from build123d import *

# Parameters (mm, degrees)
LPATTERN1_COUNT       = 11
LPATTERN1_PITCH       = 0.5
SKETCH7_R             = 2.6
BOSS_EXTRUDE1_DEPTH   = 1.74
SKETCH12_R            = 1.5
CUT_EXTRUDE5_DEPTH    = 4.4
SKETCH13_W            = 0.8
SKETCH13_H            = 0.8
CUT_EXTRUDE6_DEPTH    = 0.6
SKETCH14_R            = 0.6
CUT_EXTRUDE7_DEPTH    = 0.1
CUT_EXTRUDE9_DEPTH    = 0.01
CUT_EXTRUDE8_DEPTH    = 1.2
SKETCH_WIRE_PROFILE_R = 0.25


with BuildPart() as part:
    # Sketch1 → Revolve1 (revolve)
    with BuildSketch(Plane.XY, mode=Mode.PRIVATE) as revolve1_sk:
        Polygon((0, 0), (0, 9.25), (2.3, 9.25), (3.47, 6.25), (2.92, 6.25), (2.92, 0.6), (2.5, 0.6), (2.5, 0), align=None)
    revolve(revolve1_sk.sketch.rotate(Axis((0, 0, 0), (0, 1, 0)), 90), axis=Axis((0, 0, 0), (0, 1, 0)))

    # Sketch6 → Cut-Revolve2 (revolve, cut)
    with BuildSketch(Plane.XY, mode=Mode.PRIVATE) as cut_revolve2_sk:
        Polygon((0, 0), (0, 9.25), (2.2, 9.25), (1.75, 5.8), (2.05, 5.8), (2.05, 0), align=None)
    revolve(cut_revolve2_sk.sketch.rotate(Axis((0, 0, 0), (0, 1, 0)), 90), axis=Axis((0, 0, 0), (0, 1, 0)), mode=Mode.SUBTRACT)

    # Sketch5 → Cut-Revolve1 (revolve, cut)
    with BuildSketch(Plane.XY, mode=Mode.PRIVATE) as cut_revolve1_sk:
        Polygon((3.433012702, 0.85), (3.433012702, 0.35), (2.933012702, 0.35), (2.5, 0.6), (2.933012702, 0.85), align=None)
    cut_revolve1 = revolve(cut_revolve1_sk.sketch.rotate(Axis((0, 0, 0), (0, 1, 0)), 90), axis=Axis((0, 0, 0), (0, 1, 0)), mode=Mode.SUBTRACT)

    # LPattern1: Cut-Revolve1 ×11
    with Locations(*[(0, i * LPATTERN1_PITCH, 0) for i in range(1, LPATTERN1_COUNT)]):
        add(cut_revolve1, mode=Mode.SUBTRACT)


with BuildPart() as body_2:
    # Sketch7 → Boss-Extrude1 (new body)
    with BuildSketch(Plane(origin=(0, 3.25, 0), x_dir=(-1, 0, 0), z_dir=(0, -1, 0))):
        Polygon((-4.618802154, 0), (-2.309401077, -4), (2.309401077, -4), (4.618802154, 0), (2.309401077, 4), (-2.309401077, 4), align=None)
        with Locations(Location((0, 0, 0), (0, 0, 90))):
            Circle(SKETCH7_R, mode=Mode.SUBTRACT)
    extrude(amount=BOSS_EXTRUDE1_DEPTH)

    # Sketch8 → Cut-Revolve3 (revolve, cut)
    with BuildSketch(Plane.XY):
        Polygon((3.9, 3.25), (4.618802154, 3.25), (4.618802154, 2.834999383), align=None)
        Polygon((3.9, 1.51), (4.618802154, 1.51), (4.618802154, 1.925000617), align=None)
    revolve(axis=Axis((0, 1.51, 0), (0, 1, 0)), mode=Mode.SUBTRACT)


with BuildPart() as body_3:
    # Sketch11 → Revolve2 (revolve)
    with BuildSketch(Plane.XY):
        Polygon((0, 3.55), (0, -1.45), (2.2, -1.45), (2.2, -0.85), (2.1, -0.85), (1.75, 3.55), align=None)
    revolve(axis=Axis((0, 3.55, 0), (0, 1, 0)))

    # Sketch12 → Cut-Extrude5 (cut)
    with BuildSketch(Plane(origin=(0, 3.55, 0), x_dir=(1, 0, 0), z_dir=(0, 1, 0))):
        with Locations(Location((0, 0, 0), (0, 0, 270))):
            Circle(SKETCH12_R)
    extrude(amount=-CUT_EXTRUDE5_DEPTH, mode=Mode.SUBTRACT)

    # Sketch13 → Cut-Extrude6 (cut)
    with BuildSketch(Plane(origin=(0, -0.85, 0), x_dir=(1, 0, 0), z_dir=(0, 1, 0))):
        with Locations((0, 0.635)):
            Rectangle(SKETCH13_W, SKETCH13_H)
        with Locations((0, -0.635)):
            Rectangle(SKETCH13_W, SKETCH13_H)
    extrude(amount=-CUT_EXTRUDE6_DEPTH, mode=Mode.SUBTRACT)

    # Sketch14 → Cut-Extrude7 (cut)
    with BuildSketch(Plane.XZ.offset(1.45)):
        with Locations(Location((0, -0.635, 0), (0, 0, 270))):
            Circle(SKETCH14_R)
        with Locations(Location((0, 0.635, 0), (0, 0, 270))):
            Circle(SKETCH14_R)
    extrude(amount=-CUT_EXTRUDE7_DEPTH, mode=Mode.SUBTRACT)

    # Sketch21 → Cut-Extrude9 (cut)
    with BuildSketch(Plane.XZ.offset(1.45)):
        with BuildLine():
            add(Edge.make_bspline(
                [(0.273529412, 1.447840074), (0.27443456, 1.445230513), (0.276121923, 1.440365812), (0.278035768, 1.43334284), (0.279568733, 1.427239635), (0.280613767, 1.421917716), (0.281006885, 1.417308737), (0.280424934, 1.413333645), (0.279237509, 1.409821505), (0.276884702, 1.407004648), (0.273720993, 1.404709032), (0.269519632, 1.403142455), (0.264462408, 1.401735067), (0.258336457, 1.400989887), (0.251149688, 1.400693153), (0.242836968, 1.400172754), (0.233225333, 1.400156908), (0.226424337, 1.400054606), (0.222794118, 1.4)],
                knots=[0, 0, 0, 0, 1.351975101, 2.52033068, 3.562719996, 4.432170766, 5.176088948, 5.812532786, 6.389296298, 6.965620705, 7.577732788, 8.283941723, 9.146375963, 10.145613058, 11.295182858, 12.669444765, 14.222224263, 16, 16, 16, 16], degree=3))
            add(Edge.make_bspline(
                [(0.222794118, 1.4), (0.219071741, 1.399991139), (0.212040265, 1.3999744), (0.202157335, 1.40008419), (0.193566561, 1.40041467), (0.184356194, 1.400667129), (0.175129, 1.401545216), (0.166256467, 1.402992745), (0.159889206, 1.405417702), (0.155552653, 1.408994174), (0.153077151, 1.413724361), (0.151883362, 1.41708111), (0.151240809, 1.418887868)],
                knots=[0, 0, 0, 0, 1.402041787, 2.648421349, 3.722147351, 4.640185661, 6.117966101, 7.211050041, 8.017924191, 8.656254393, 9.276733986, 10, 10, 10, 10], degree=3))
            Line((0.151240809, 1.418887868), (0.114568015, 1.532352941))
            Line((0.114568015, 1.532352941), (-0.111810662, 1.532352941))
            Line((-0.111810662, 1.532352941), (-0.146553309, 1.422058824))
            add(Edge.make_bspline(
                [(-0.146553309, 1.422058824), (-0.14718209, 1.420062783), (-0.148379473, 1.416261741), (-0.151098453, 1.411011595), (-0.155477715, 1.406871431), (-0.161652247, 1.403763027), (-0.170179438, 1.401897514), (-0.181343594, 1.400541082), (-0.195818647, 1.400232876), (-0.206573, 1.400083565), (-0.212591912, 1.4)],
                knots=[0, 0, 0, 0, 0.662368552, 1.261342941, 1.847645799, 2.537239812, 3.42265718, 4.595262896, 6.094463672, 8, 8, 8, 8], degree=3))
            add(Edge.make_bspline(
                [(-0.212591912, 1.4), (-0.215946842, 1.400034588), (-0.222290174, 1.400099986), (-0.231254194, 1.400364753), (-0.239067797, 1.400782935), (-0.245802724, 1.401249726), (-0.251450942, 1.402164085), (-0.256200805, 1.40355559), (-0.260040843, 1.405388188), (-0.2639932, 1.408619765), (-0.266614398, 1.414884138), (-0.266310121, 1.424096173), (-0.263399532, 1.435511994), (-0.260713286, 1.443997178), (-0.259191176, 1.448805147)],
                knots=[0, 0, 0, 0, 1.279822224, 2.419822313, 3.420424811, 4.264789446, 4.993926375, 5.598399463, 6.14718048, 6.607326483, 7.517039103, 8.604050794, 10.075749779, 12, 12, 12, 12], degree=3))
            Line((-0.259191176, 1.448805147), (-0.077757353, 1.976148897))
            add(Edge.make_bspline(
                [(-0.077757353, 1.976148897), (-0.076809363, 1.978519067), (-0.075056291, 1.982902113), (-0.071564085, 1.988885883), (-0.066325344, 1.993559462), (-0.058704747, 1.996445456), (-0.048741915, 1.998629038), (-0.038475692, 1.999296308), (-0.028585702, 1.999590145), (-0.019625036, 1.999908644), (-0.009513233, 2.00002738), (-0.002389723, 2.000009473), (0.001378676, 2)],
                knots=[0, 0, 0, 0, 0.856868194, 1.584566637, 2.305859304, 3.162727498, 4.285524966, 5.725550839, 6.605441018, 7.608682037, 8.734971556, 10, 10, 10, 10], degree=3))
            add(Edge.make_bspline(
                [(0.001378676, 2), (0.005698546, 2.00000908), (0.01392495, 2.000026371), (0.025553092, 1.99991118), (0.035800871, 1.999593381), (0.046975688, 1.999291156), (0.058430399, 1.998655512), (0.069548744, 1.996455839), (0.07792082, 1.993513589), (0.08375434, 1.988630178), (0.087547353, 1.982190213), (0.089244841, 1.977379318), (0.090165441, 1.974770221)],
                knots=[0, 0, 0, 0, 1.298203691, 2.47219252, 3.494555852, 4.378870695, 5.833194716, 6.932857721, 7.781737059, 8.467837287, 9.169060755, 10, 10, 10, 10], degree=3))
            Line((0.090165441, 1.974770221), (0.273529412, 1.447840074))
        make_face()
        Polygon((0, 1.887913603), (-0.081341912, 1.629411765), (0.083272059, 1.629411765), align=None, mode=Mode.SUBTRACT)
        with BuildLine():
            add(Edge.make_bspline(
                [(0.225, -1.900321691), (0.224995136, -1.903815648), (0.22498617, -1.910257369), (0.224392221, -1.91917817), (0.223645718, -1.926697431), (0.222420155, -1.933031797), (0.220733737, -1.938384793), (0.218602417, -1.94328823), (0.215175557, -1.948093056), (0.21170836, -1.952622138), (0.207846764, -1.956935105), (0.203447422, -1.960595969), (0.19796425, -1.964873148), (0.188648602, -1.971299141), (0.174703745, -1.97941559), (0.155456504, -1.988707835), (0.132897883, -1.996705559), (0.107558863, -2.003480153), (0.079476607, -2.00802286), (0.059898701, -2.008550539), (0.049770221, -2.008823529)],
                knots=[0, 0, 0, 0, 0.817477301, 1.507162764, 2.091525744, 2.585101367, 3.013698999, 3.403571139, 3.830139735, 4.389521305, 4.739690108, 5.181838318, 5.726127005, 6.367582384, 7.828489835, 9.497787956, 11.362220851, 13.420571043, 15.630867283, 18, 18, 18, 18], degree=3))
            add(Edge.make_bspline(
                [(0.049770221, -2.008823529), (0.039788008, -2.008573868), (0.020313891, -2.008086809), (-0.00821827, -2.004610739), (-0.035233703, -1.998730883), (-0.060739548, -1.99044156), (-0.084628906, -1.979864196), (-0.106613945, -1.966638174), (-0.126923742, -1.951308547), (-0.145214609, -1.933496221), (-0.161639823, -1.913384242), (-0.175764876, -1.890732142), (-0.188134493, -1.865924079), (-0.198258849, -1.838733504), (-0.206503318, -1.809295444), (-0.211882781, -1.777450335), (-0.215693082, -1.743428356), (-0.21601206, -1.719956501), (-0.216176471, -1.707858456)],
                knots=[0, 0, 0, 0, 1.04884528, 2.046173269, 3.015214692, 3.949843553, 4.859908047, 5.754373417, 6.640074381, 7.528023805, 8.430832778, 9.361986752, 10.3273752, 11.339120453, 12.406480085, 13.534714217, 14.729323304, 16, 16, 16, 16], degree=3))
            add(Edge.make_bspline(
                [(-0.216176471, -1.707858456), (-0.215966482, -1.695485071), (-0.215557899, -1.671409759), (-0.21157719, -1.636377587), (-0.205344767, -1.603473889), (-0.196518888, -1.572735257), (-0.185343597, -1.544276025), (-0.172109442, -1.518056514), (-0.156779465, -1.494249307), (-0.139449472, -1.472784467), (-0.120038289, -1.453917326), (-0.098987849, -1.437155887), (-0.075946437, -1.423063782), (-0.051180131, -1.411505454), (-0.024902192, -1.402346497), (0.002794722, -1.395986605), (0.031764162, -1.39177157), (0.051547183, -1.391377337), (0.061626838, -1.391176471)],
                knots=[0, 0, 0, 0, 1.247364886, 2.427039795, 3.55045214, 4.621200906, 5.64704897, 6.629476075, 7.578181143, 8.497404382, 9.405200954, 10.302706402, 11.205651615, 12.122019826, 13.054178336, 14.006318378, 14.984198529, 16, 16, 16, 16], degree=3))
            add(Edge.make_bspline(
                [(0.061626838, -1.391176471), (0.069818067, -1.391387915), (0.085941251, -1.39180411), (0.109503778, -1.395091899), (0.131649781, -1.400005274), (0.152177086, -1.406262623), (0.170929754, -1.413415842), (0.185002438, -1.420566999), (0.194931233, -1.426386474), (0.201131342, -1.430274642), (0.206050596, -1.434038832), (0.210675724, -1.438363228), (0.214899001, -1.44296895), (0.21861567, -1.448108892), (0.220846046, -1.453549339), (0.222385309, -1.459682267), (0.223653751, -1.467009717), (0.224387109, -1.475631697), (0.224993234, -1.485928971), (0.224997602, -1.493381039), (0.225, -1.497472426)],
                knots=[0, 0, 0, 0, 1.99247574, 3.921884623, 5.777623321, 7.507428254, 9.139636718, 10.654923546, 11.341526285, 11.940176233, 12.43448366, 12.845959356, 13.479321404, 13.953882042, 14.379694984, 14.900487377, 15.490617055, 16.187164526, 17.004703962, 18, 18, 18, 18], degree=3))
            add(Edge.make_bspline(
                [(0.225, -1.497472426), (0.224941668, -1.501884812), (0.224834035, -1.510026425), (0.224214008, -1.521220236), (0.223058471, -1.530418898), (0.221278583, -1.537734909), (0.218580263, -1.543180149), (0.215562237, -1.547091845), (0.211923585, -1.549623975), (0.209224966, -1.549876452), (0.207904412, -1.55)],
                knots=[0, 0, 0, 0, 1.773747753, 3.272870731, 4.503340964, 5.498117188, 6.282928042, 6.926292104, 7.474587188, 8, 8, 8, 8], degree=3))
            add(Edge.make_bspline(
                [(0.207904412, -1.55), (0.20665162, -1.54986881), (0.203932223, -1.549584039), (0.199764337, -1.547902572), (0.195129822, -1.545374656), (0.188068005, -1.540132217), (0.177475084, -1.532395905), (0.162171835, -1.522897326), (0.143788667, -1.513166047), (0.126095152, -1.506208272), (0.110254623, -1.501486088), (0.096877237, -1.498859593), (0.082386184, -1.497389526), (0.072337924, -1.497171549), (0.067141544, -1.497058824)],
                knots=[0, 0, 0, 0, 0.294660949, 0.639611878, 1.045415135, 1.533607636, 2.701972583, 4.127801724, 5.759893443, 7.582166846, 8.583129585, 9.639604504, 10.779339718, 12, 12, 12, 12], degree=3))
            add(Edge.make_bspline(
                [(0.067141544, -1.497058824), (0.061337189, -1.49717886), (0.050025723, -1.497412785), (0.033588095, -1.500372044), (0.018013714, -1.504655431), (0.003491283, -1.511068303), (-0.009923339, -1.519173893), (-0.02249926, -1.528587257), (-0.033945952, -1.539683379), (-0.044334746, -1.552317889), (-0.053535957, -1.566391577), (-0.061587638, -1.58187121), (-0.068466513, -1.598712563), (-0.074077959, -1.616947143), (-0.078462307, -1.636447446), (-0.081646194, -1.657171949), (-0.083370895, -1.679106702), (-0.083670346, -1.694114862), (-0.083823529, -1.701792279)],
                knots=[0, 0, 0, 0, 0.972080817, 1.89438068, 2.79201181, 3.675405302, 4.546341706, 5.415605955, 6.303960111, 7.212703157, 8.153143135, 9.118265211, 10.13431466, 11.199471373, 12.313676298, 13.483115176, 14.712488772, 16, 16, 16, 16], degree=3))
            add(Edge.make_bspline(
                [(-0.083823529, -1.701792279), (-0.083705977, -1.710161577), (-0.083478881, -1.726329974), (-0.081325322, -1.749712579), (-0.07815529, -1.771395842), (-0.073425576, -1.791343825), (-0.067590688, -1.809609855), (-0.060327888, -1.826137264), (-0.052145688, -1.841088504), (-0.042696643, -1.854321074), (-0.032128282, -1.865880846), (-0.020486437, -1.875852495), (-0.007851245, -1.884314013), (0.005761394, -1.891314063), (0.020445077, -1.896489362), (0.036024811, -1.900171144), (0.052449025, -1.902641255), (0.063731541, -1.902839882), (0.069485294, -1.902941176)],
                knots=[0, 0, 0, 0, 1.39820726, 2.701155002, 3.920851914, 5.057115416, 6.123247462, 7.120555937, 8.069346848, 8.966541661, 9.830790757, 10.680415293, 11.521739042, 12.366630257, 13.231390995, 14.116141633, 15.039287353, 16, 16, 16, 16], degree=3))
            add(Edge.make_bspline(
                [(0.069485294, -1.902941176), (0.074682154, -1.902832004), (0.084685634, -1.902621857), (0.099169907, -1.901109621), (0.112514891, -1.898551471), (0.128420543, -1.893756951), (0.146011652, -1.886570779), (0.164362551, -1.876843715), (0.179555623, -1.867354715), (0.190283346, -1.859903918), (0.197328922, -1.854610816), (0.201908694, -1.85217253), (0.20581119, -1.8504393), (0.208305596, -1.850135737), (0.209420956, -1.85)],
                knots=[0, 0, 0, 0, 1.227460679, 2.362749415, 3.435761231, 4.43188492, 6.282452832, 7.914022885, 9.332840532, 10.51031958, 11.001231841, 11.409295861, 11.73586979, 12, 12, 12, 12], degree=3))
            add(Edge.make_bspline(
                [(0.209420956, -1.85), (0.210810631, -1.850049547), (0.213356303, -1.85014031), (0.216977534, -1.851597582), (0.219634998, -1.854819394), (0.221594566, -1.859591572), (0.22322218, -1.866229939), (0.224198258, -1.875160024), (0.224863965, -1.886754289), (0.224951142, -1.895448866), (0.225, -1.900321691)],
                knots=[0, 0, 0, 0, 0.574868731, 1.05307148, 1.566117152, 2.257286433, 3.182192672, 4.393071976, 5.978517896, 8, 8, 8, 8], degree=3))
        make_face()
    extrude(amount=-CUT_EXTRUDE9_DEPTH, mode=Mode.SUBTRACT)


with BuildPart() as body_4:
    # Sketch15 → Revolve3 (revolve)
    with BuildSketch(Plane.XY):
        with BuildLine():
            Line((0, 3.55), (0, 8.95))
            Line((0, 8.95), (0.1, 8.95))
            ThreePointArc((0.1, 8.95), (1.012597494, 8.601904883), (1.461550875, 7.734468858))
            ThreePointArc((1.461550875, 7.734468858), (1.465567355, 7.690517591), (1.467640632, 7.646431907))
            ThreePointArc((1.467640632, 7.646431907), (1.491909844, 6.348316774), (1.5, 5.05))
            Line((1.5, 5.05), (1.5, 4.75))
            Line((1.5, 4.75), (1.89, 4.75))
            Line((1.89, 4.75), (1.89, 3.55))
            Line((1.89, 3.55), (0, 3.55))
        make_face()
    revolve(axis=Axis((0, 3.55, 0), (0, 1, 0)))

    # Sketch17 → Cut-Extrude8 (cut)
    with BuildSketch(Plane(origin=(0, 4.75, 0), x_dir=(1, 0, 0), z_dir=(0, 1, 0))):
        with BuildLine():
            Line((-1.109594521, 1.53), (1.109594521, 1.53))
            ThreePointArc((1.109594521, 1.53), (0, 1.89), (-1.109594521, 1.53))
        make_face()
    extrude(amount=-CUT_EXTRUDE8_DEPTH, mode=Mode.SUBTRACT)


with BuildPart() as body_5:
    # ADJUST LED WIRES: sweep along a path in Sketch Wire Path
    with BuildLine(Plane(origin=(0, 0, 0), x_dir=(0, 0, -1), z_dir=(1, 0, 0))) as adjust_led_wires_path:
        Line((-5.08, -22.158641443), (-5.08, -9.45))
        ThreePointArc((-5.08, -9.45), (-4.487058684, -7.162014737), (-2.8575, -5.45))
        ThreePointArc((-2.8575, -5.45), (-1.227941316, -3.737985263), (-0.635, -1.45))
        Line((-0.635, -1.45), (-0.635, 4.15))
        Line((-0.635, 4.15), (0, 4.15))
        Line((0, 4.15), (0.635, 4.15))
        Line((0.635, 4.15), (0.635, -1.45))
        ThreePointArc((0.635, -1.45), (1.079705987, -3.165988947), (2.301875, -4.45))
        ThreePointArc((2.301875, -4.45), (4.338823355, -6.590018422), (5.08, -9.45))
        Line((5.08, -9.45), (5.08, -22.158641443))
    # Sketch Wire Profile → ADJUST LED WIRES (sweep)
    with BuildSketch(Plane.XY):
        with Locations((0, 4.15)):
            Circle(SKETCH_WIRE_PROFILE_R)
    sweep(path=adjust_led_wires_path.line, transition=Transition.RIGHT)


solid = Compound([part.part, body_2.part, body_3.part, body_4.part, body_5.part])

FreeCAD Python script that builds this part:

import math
import FreeCAD as App
import Part
import Sketcher

V = App.Vector
Q = App.Units.Quantity


def add_polygon(sketch, points):
    """Adds a closed chain of lines whose ends are joined by coincident constraints."""
    first, n = sketch.GeometryCount, len(points)
    for a, b in zip(points, points[1:] + points[:1]):
        sketch.addGeometry(Part.LineSegment(App.Vector(*a, 0), App.Vector(*b, 0)), False)
    for i in range(n):
        sketch.addConstraint(Sketcher.Constraint("Coincident", first + i, 2, first + (i + 1) % n, 1))

doc = App.newDocument("Part")
params = doc.addObject("Spreadsheet::Sheet", "Params")
for row, (alias, value) in enumerate([
    ("sketch1_width", "2.5 mm"),
    ("sketch1_width2", "2.3 mm"),
    ("sketch1_height", "0.6 mm"),
    ("sketch1_width3", "0.42 mm"),
    ("sketch1_width4", "0.55 mm"),
    ("revolution_angle", "360 deg"),
    ("sketch2_width", "0.3 mm"),
    ("sketch2_width2", "2.2 mm"),
    ("sketch2_height", "5.8 mm"),
    ("sketch2_width3", "2.05 mm"),
    ("sketch2_height2", "9.25 mm"),
    ("groove_angle", "360 deg"),
    ("sketch3_width", "0.5 mm"),
    ("groove2_angle", "360 deg"),
    ("linearpattern_pitch", "0.5 mm"),
    ("sketch4_diameter", "5.2 mm"),
    ("pad1_length", "1.74 mm"),
    ("sketch5_length", "0.830001 mm"),
    ("groove3_angle", "360 deg"),
    ("sketch6_height", "5 mm"),
    ("sketch6_width", "2.2 mm"),
    ("sketch6_width2", "0.1 mm"),
    ("sketch6_height2", "0.6 mm"),
    ("sketch6_width3", "1.75 mm"),
    ("revolution2_angle", "360 deg"),
    ("sketch7_diameter", "3 mm"),
    ("pocket1_length", "4.4 mm"),
    ("sketch8_width", "0.8 mm"),
    ("pocket2_length", "0.6 mm"),
    ("sketch9_diameter", "1.2 mm"),
    ("pocket3_length", "0.1 mm"),
    ("pocket4_length", "0.01 mm"),
    ("sketch11_radius", "1 mm"),
    ("sketch11_width", "0.1 mm"),
    ("sketch11_height", "5.4 mm"),
    ("sketch11_height2", "1.2 mm"),
    ("sketch11_height3", "0.3 mm"),
    ("revolution3_angle", "360 deg"),
    ("sketch12_radius", "1.89 mm"),
    ("pocket5_length", "1.2 mm"),
    ("sketch13_diameter", "0.5 mm"),
    ("sketch14_width", "5.6 mm"),
    ("sketch14_height", "1.27 mm"),
], start=1):
    params.set(f"A{row}", alias)
    params.set(f"B{row}", "=" + value)
    params.setAlias(f"B{row}", alias)

body = doc.addObject("PartDesign::Body", "Body")

# Sketch on XY plane
sketch1 = doc.addObject("Sketcher::SketchObject", "Sketch")
body.addObject(sketch1)
sketch1.AttachmentSupport = (doc.XY_Plane, [""])
sketch1.MapMode = "FlatFace"
add_polygon(sketch1, [(0, 9.25), (0, 0), (2.5, 0), (2.5, 0.6), (2.92, 0.6), (2.92, 6.25), (3.47, 6.25), (2.3, 9.25)])  # lines 0-7
sketch1.addConstraint([
    Sketcher.Constraint("Vertical", 0),
    Sketcher.Constraint("Horizontal", 1),
    Sketcher.Constraint("Vertical", 2),
    Sketcher.Constraint("Horizontal", 3),
    Sketcher.Constraint("Vertical", 4),
    Sketcher.Constraint("Horizontal", 5),
    Sketcher.Constraint("Horizontal", 7),
    Sketcher.Constraint("Coincident", 0, 2, -1, 1),
    Sketcher.Constraint("DistanceX", 1, 1, 1, 2, Q("2.5 mm")),
    Sketcher.Constraint("DistanceX", 7, 2, 7, 1, Q("2.3 mm")),
    Sketcher.Constraint("DistanceY", 2, 1, 2, 2, Q("0.6 mm")),
    Sketcher.Constraint("DistanceY", 4, 2, 6, 2, Q("3 mm")),
    Sketcher.Constraint("DistanceX", 3, 1, 3, 2, Q("0.42 mm")),
    Sketcher.Constraint("DistanceX", 5, 1, 5, 2, Q("0.55 mm")),
    Sketcher.Constraint("DistanceY", 0, 2, 0, 1, Q("9.25 mm")),
])
sketch1.setExpression("Constraints[16]", "Params.sketch1_width")
sketch1.setExpression("Constraints[17]", "Params.sketch1_width2")
sketch1.setExpression("Constraints[18]", "Params.sketch1_height")
sketch1.setExpression("Constraints[20]", "Params.sketch1_width3")
sketch1.setExpression("Constraints[21]", "Params.sketch1_width4")
revolution = doc.addObject("PartDesign::Revolution", "Revolution")
body.addObject(revolution)
revolution.Profile = sketch1
revolution.ReferenceAxis = (sketch1, ["V_Axis"])
revolution.setExpression("Angle", "Params.revolution_angle")

# Sketch on XY plane
sketch2 = doc.addObject("Sketcher::SketchObject", "Sketch001")
body.addObject(sketch2)
sketch2.AttachmentSupport = (doc.XY_Plane, [""])
sketch2.MapMode = "FlatFace"
add_polygon(sketch2, [(0, 9.25), (0, 0), (2.05, 0), (2.05, 5.8), (1.75, 5.8), (2.2, 9.25)])  # lines 0-5
sketch2.addConstraint([
    Sketcher.Constraint("Vertical", 0),
    Sketcher.Constraint("Horizontal", 1),
    Sketcher.Constraint("Vertical", 2),
    Sketcher.Constraint("Horizontal", 3),
    Sketcher.Constraint("Horizontal", 5),
    Sketcher.Constraint("Coincident", 0, 2, -1, 1),
    Sketcher.Constraint("DistanceX", 3, 2, 3, 1, Q("0.3 mm")),
    Sketcher.Constraint("DistanceX", 5, 2, 5, 1, Q("2.2 mm")),
    Sketcher.Constraint("DistanceY", 2, 1, 2, 2, Q("5.8 mm")),
    Sketcher.Constraint("DistanceX", 1, 1, 1, 2, Q("2.05 mm")),
    Sketcher.Constraint("DistanceY", 0, 2, 0, 1, Q("9.25 mm")),
])
sketch2.setExpression("Constraints[12]", "Params.sketch2_width")
sketch2.setExpression("Constraints[13]", "Params.sketch2_width2")
sketch2.setExpression("Constraints[14]", "Params.sketch2_height")
sketch2.setExpression("Constraints[15]", "Params.sketch2_width3")
sketch2.setExpression("Constraints[16]", "Params.sketch2_height2")
groove = doc.addObject("PartDesign::Groove", "Groove")
body.addObject(groove)
groove.Profile = sketch2
groove.ReferenceAxis = (sketch2, ["V_Axis"])
groove.setExpression("Angle", "Params.groove_angle")

# Sketch on XY plane
sketch3 = doc.addObject("Sketcher::SketchObject", "Sketch002")
body.addObject(sketch3)
sketch3.AttachmentSupport = (doc.XY_Plane, [""])
sketch3.MapMode = "FlatFace"
add_polygon(sketch3, [(3.433013, 0.35), (3.433013, 0.85), (2.933013, 0.85), (2.5, 0.6), (2.933013, 0.35)])  # lines 0-4
sketch3.addConstraint([
    Sketcher.Constraint("Vertical", 0),
    Sketcher.Constraint("Horizontal", 1),
    Sketcher.Constraint("Horizontal", 4),
    Sketcher.Constraint("Vertical", 1, 2, 3, 2),
    Sketcher.Constraint("Equal", 4, 0),
    Sketcher.Constraint("Equal", 2, 3),
    Sketcher.Constraint("Angle", 2, Q("-150 deg")),
    Sketcher.Constraint("DistanceX", 1, 2, 1, 1, Q("0.5 mm")),
    Sketcher.Constraint("DistanceX", -1, 1, 2, 2, Q("2.5 mm")),
    Sketcher.Constraint("DistanceY", -1, 1, 2, 2, Q("0.6 mm")),
])
sketch3.setExpression("Constraints[12]", "Params.sketch3_width")
groove2 = doc.addObject("PartDesign::Groove", "Groove001")
body.addObject(groove2)
groove2.Profile = sketch3
groove2.ReferenceAxis = (sketch3, ["V_Axis"])
groove2.setExpression("Angle", "Params.groove2_angle")
doc.recompute()

linearpattern = doc.addObject("PartDesign::LinearPattern", "LinearPattern")
body.addObject(linearpattern)
linearpattern.Originals = [groove2]
linearpattern.Direction = (doc.Y_Axis, [""])
linearpattern.Mode = "offset"
linearpattern.setExpression("Offset", "Params.linearpattern_pitch")
linearpattern.Occurrences = 11
body.Tip = linearpattern
body2 = doc.addObject("PartDesign::Body", "Body001")

# Sketch on XZ plane
sketch4 = doc.addObject("Sketcher::SketchObject", "Sketch003")
body2.addObject(sketch4)
sketch4.AttachmentSupport = (doc.getObject("XZ_Plane001"), [""])
sketch4.MapMode = "FlatFace"
sketch4.AttachmentOffset = App.Placement(V(0, 0, -3.25), App.Rotation())
add_polygon(sketch4, [(4.618802, 0), (2.309401, 4), (-2.309401, 4), (-4.618802, 0), (-2.309401, -4), (2.309401, -4)])  # lines 0-5
sketch4.addGeometry(Part.Circle(V(0, 0, 0), V(0, 0, 1), 2.6), False)  # 6
sketch4.addConstraint([
    Sketcher.Constraint("Horizontal", 1),
    Sketcher.Constraint("Horizontal", 4),
    Sketcher.Constraint("Coincident", 6, 3, -1, 1),
    Sketcher.Constraint("Symmetric", 0, 2, 3, 2, -1, 1),
    Sketcher.Constraint("Symmetric", 2, 2, 5, 2, -1, 1),
    Sketcher.Constraint("PointOnObject", 2, 2, -1),
    Sketcher.Constraint("Parallel", 2, 5),
    Sketcher.Constraint("Vertical", 1, 2, 3, 2),
    Sketcher.Constraint("Diameter", 6, Q("5.2 mm")),
    Sketcher.Constraint("Angle", 0, Q("120 deg")),
    Sketcher.Constraint("DistanceY", -1, 1, 0, 2, Q("4 mm")),
    Sketcher.Constraint("DistanceX", -1, 1, 0, 2, Q("2.309401 mm")),
])
sketch4.setExpression("Constraints[14]", "Params.sketch4_diameter")
pad1 = doc.addObject("PartDesign::Pad", "Pad")
body2.addObject(pad1)
pad1.Profile = sketch4
pad1.setExpression("Length", "Params.pad1_length")

# Sketch on XY plane
sketch5 = doc.addObject("Sketcher::SketchObject", "Sketch004")
body2.addObject(sketch5)
sketch5.AttachmentSupport = (doc.getObject("XY_Plane001"), [""])
sketch5.MapMode = "FlatFace"
add_polygon(sketch5, [(4.618802, 3.25), (3.9, 3.25), (4.618802, 2.834999)])  # lines 0-2
add_polygon(sketch5, [(3.9, 1.51), (4.618802, 1.51), (4.618802, 1.925001)])  # lines 3-5
sketch5.addConstraint([
    Sketcher.Constraint("Horizontal", 0),
    Sketcher.Constraint("Vertical", 2),
    Sketcher.Constraint("Horizontal", 3),
    Sketcher.Constraint("Vertical", 4),
    Sketcher.Constraint("Vertical", 2, 2, 3, 2),
    Sketcher.Constraint("Vertical", 0, 2, 5, 2),
    Sketcher.Constraint("Equal", 2, 4),
    Sketcher.Constraint("Angle", 1, Q("-30 deg")),
    Sketcher.Constraint("DistanceX", -1, 1, 0, 2, Q("3.9 mm")),
    Sketcher.Constraint("Distance", 1, Q("0.830001 mm")),
    Sketcher.Constraint("DistanceY", -1, 1, 0, 2, Q("3.25 mm")),
    Sketcher.Constraint("DistanceY", -1, 1, 3, 2, Q("1.51 mm")),
])
sketch5.setExpression("Constraints[15]", "Params.sketch5_length")
groove3 = doc.addObject("PartDesign::Groove", "Groove002")
body2.addObject(groove3)
groove3.Profile = sketch5
groove3.ReferenceAxis = (sketch5, ["V_Axis"])
groove3.setExpression("Angle", "Params.groove3_angle")
body3 = doc.addObject("PartDesign::Body", "Body002")

# Sketch on XY plane
sketch6 = doc.addObject("Sketcher::SketchObject", "Sketch005")
body3.addObject(sketch6)
sketch6.AttachmentSupport = (doc.getObject("XY_Plane002"), [""])
sketch6.MapMode = "FlatFace"
add_polygon(sketch6, [(0, 3.55), (0, -1.45), (2.2, -1.45), (2.2, -0.85), (2.1, -0.85), (1.75, 3.55)])  # lines 0-5
sketch6.addConstraint([
    Sketcher.Constraint("Vertical", 0),
    Sketcher.Constraint("Horizontal", 1),
    Sketcher.Constraint("Vertical", 2),
    Sketcher.Constraint("Horizontal", 3),
    Sketcher.Constraint("Horizontal", 5),
    Sketcher.Constraint("PointOnObject", 0, 2, -2),
    Sketcher.Constraint("DistanceY", 0, 2, 0, 1, Q("5 mm")),
    Sketcher.Constraint("DistanceX", 1, 1, 1, 2, Q("2.2 mm")),
    Sketcher.Constraint("DistanceX", 3, 2, 3, 1, Q("0.1 mm")),
    Sketcher.Constraint("DistanceY", 2, 1, 2, 2, Q("0.6 mm")),
    Sketcher.Constraint("DistanceX", 5, 2, 5, 1, Q("1.75 mm")),
    Sketcher.Constraint("DistanceY", 0, 2, -1, 1, Q("1.45 mm")),
])
sketch6.setExpression("Constraints[12]", "Params.sketch6_height")
sketch6.setExpression("Constraints[13]", "Params.sketch6_width")
sketch6.setExpression("Constraints[14]", "Params.sketch6_width2")
sketch6.setExpression("Constraints[15]", "Params.sketch6_height2")
sketch6.setExpression("Constraints[16]", "Params.sketch6_width3")
revolution2 = doc.addObject("PartDesign::Revolution", "Revolution001")
body3.addObject(revolution2)
revolution2.Profile = sketch6
revolution2.ReferenceAxis = (sketch6, ["V_Axis"])
revolution2.setExpression("Angle", "Params.revolution2_angle")

# Sketch on XZ plane
sketch7 = doc.addObject("Sketcher::SketchObject", "Sketch006")
body3.addObject(sketch7)
sketch7.AttachmentSupport = (doc.getObject("XZ_Plane002"), [""])
sketch7.MapMode = "FlatFace"
sketch7.AttachmentOffset = App.Placement(V(0, 0, -3.55), App.Rotation())
sketch7.addGeometry(Part.Circle(V(0, 0, 0), V(0, 0, 1), 1.5), False)
sketch7.addConstraint([
    Sketcher.Constraint("Coincident", 0, 3, -1, 1),
    Sketcher.Constraint("Diameter", 0, Q("3 mm")),
])
sketch7.setExpression("Constraints[1]", "Params.sketch7_diameter")
pocket1 = doc.addObject("PartDesign::Pocket", "Pocket")
body3.addObject(pocket1)
pocket1.Profile = sketch7
pocket1.setExpression("Length", "Params.pocket1_length")
pocket1.Reversed = True

# Sketch on XZ plane
sketch8 = doc.addObject("Sketcher::SketchObject", "Sketch007")
body3.addObject(sketch8)
sketch8.AttachmentSupport = (doc.getObject("XZ_Plane002"), [""])
sketch8.MapMode = "FlatFace"
sketch8.AttachmentOffset = App.Placement(V(0, 0, 0.85), App.Rotation())
add_polygon(sketch8, [(-0.4, -1.035), (-0.4, -0.235), (0.4, -0.235), (0.4, -1.035)])  # lines 0-3
add_polygon(sketch8, [(-0.4, 0.235), (-0.4, 1.035), (0.4, 1.035), (0.4, 0.235)])  # lines 4-7
sketch8.addConstraint([
    Sketcher.Constraint("Vertical", 0),
    Sketcher.Constraint("Horizontal", 1),
    Sketcher.Constraint("Vertical", 2),
    Sketcher.Constraint("Horizontal", 3),
    Sketcher.Constraint("Vertical", 4),
    Sketcher.Constraint("Horizontal", 5),
    Sketcher.Constraint("Vertical", 6),
    Sketcher.Constraint("Horizontal", 7),
    Sketcher.Constraint("Symmetric", 2, 2, 4, 2, -1, 1),
    Sketcher.Constraint("Symmetric", 0, 2, 6, 2, -1, 1),
    Sketcher.Constraint("Vertical", 3, 2, 4, 2),
    Sketcher.Constraint("Equal", 7, 0),
    Sketcher.Constraint("DistanceX", 1, 1, 1, 2, Q("0.8 mm")),
    Sketcher.Constraint("DistanceY", 0, 2, 4, 2, Q("1.27 mm")),
])
sketch8.setExpression("Constraints[20]", "Params.sketch8_width")
pocket2 = doc.addObject("PartDesign::Pocket", "Pocket001")
body3.addObject(pocket2)
pocket2.Profile = sketch8
pocket2.setExpression("Length", "Params.pocket2_length")
pocket2.Reversed = True

# Sketch on XZ plane
sketch9 = doc.addObject("Sketcher::SketchObject", "Sketch008")
body3.addObject(sketch9)
sketch9.AttachmentSupport = (doc.getObject("XZ_Plane002"), [""])
sketch9.MapMode = "FlatFace"
sketch9.AttachmentOffset = App.Placement(V(0, 0, 1.45), App.Rotation())
sketch9.addGeometry([
    Part.Circle(V(0, -0.635, 0), V(0, 0, 1), 0.6),
    Part.Circle(V(0, 0.635, 0), V(0, 0, 1), 0.6),
], False)
sketch9.addConstraint([
    Sketcher.Constraint("Equal", 0, 1),
    Sketcher.Constraint("Symmetric", 0, 3, 1, 3, -1, 1),
    Sketcher.Constraint("PointOnObject", 0, 3, -2),
    Sketcher.Constraint("Diameter", 0, Q("1.2 mm")),
    Sketcher.Constraint("DistanceY", 0, 3, 1, 3, Q("1.27 mm")),
])
sketch9.setExpression("Constraints[3]", "Params.sketch9_diameter")
pocket3 = doc.addObject("PartDesign::Pocket", "Pocket002")
body3.addObject(pocket3)
pocket3.Profile = sketch9
pocket3.setExpression("Length", "Params.pocket3_length")

# Sketch on XZ plane
sketch10 = doc.addObject("Sketcher::SketchObject", "Sketch009")
body3.addObject(sketch10)
sketch10.AttachmentSupport = (doc.getObject("XZ_Plane002"), [""])
sketch10.MapMode = "FlatFace"
sketch10.AttachmentOffset = App.Placement(V(0, 0, 1.45), App.Rotation())
sketch10.addGeometry(Part.BSplineCurve([V(0.273529, 1.44784, 0), V(0.274435, 1.445231, 0), V(0.276122, 1.440366, 0), V(0.278036, 1.433343, 0), V(0.279569, 1.42724, 0), V(0.280614, 1.421918, 0), V(0.281007, 1.417309, 0), V(0.280425, 1.413334, 0), V(0.279238, 1.409822, 0), V(0.276885, 1.407005, 0), V(0.273721, 1.404709, 0), V(0.26952, 1.403142, 0), V(0.264462, 1.401735, 0), V(0.258336, 1.40099, 0), V(0.25115, 1.400693, 0), V(0.242837, 1.400173, 0), V(0.233225, 1.400157, 0), V(0.226424, 1.400055, 0), V(0.222794, 1.4, 0)], [4, 1, 1, 1, 1, 1, 1, 1, 1, 1, 1, 1, 1, 1, 1, 1, 4], [0, 1.351975101, 2.52033068, 3.562719996, 4.432170766, 5.176088948, 5.812532786, 6.389296298, 6.965620705, 7.577732788, 8.283941723, 9.146375963, 10.145613058, 11.295182858, 12.669444765, 14.222224263, 16], False, 3, [1, 1, 1, 1, 1, 1, 1, 1, 1, 1, 1, 1, 1, 1, 1, 1, 1, 1, 1], False), False)  # 0
sketch10.addGeometry(Part.LineSegment(V(0.273529, 1.44784, 0), V(0.090165, 1.97477, 0)), False)  # 1
sketch10.addGeometry(Part.BSplineCurve([V(0.001379, 2, 0), V(0.005699, 2.000009, 0), V(0.013925, 2.000026, 0), V(0.025553, 1.999911, 0), V(0.035801, 1.999593, 0), V(0.046976, 1.999291, 0), V(0.05843, 1.998656, 0), V(0.069549, 1.996456, 0), V(0.077921, 1.993514, 0), V(0.083754, 1.98863, 0), V(0.087547, 1.98219, 0), V(0.089245, 1.977379, 0), V(0.090165, 1.97477, 0)], [4, 1, 1, 1, 1, 1, 1, 1, 1, 1, 4], [0, 1.298203691, 2.47219252, 3.494555852, 4.378870695, 5.833194716, 6.932857721, 7.781737059, 8.467837287, 9.169060755, 10], False, 3, [1, 1, 1, 1, 1, 1, 1, 1, 1, 1, 1, 1, 1], False), False)  # 2
sketch10.addGeometry(Part.BSplineCurve([V(-0.077757, 1.976149, 0), V(-0.076809, 1.978519, 0), V(-0.075056, 1.982902, 0), V(-0.071564, 1.988886, 0), V(-0.066325, 1.993559, 0), V(-0.058705, 1.996445, 0), V(-0.048742, 1.998629, 0), V(-0.038476, 1.999296, 0), V(-0.028586, 1.99959, 0), V(-0.019625, 1.999909, 0), V(-0.009513, 2.000027, 0), V(-0.00239, 2.000009, 0), V(0.001379, 2, 0)], [4, 1, 1, 1, 1, 1, 1, 1, 1, 1, 4], [0, 0.856868194, 1.584566637, 2.305859304, 3.162727498, 4.285524966, 5.725550839, 6.605441018, 7.608682037, 8.734971556, 10], False, 3, [1, 1, 1, 1, 1, 1, 1, 1, 1, 1, 1, 1, 1], False), False)  # 3
sketch10.addGeometry(Part.LineSegment(V(-0.077757, 1.976149, 0), V(-0.259191, 1.448805, 0)), False)  # 4
sketch10.addGeometry(Part.BSplineCurve([V(-0.212592, 1.4, 0), V(-0.215947, 1.400035, 0), V(-0.22229, 1.4001, 0), V(-0.231254, 1.400365, 0), V(-0.239068, 1.400783, 0), V(-0.245803, 1.40125, 0), V(-0.251451, 1.402164, 0), V(-0.256201, 1.403556, 0), V(-0.260041, 1.405388, 0), V(-0.263993, 1.40862, 0), V(-0.266614, 1.414884, 0), V(-0.26631, 1.424096, 0), V(-0.2634, 1.435512, 0), V(-0.260713, 1.443997, 0), V(-0.259191, 1.448805, 0)], [4, 1, 1, 1, 1, 1, 1, 1, 1, 1, 1, 1, 4], [0, 1.279822224, 2.419822313, 3.420424811, 4.264789446, 4.993926375, 5.598399463, 6.14718048, 6.607326483, 7.517039103, 8.604050794, 10.075749779, 12], False, 3, [1, 1, 1, 1, 1, 1, 1, 1, 1, 1, 1, 1, 1, 1, 1], False), False)  # 5
sketch10.addGeometry(Part.BSplineCurve([V(-0.146553, 1.422059, 0), V(-0.147182, 1.420063, 0), V(-0.148379, 1.416262, 0), V(-0.151098, 1.411012, 0), V(-0.155478, 1.406871, 0), V(-0.161652, 1.403763, 0), V(-0.170179, 1.401898, 0), V(-0.181344, 1.400541, 0), V(-0.195819, 1.400233, 0), V(-0.206573, 1.400084, 0), V(-0.212592, 1.4, 0)], [4, 1, 1, 1, 1, 1, 1, 1, 4], [0, 0.662368552, 1.261342941, 1.847645799, 2.537239812, 3.42265718, 4.595262896, 6.094463672, 8], False, 3, [1, 1, 1, 1, 1, 1, 1, 1, 1, 1, 1], False), False)  # 6
sketch10.addGeometry(Part.LineSegment(V(-0.146553, 1.422059, 0), V(-0.111811, 1.532353, 0)), False)  # 7
sketch10.addGeometry(Part.LineSegment(V(-0.111811, 1.532353, 0), V(0.114568, 1.532353, 0)), False)  # 8
sketch10.addGeometry(Part.LineSegment(V(0.114568, 1.532353, 0), V(0.151241, 1.418888, 0)), False)  # 9
sketch10.addGeometry(Part.BSplineCurve([V(0.222794, 1.4, 0), V(0.219072, 1.399991, 0), V(0.21204, 1.399974, 0), V(0.202157, 1.400084, 0), V(0.193567, 1.400415, 0), V(0.184356, 1.400667, 0), V(0.175129, 1.401545, 0), V(0.166256, 1.402993, 0), V(0.159889, 1.405418, 0), V(0.155553, 1.408994, 0), V(0.153077, 1.413724, 0), V(0.151883, 1.417081, 0), V(0.151241, 1.418888, 0)], [4, 1, 1, 1, 1, 1, 1, 1, 1, 1, 4], [0, 1.402041787, 2.648421349, 3.722147351, 4.640185661, 6.117966101, 7.211050041, 8.017924191, 8.656254393, 9.276733986, 10], False, 3, [1, 1, 1, 1, 1, 1, 1, 1, 1, 1, 1, 1, 1], False), False)  # 10
add_polygon(sketch10, [(0, 1.887914), (0.083272, 1.629412), (-0.081342, 1.629412)])  # lines 11-13
sketch10.addGeometry(Part.BSplineCurve([V(0.225, -1.900322, 0), V(0.224995, -1.903816, 0), V(0.224986, -1.910257, 0), V(0.224392, -1.919178, 0), V(0.223646, -1.926697, 0), V(0.22242, -1.933032, 0), V(0.220734, -1.938385, 0), V(0.218602, -1.943288, 0), V(0.215176, -1.948093, 0), V(0.211708, -1.952622, 0), V(0.207847, -1.956935, 0), V(0.203447, -1.960596, 0), V(0.197964, -1.964873, 0), V(0.188649, -1.971299, 0), V(0.174704, -1.979416, 0), V(0.155457, -1.988708, 0), V(0.132898, -1.996706, 0), V(0.107559, -2.00348, 0), V(0.079477, -2.008023, 0), V(0.059899, -2.008551, 0), V(0.04977, -2.008824, 0)], [4, 1, 1, 1, 1, 1, 1, 1, 1, 1, 1, 1, 1, 1, 1, 1, 1, 1, 4], [0, 0.817477301, 1.507162764, 2.091525744, 2.585101367, 3.013698999, 3.403571139, 3.830139735, 4.389521305, 4.739690108, 5.181838318, 5.726127005, 6.367582384, 7.828489835, 9.497787956, 11.362220851, 13.420571043, 15.630867283, 18], False, 3, [1, 1, 1, 1, 1, 1, 1, 1, 1, 1, 1, 1, 1, 1, 1, 1, 1, 1, 1, 1, 1], False), False)  # 14
sketch10.addGeometry(Part.BSplineCurve([V(0.209421, -1.85, 0), V(0.210811, -1.85005, 0), V(0.213356, -1.85014, 0), V(0.216978, -1.851598, 0), V(0.219635, -1.854819, 0), V(0.221595, -1.859592, 0), V(0.223222, -1.86623, 0), V(0.224198, -1.87516, 0), V(0.224864, -1.886754, 0), V(0.224951, -1.895449, 0), V(0.225, -1.900322, 0)], [4, 1, 1, 1, 1, 1, 1, 1, 4], [0, 0.574868731, 1.05307148, 1.566117152, 2.257286433, 3.182192672, 4.393071976, 5.978517896, 8], False, 3, [1, 1, 1, 1, 1, 1, 1, 1, 1, 1, 1], False), False)  # 15
sketch10.addGeometry(Part.BSplineCurve([V(0.069485, -1.902941, 0), V(0.074682, -1.902832, 0), V(0.084686, -1.902622, 0), V(0.09917, -1.90111, 0), V(0.112515, -1.898551, 0), V(0.128421, -1.893757, 0), V(0.146012, -1.886571, 0), V(0.164363, -1.876844, 0), V(0.179556, -1.867355, 0), V(0.190283, -1.859904, 0), V(0.197329, -1.854611, 0), V(0.201909, -1.852173, 0), V(0.205811, -1.850439, 0), V(0.208306, -1.850136, 0), V(0.209421, -1.85, 0)], [4, 1, 1, 1, 1, 1, 1, 1, 1, 1, 1, 1, 4], [0, 1.227460679, 2.362749415, 3.435761231, 4.43188492, 6.282452832, 7.914022885, 9.332840532, 10.51031958, 11.001231841, 11.409295861, 11.73586979, 12], False, 3, [1, 1, 1, 1, 1, 1, 1, 1, 1, 1, 1, 1, 1, 1, 1], False), False)  # 16
sketch10.addGeometry(Part.BSplineCurve([V(-0.083824, -1.701792, 0), V(-0.083706, -1.710162, 0), V(-0.083479, -1.72633, 0), V(-0.081325, -1.749713, 0), V(-0.078155, -1.771396, 0), V(-0.073426, -1.791344, 0), V(-0.067591, -1.80961, 0), V(-0.060328, -1.826137, 0), V(-0.052146, -1.841089, 0), V(-0.042697, -1.854321, 0), V(-0.032128, -1.865881, 0), V(-0.020486, -1.875852, 0), V(-0.007851, -1.884314, 0), V(0.005761, -1.891314, 0), V(0.020445, -1.896489, 0), V(0.036025, -1.900171, 0), V(0.052449, -1.902641, 0), V(0.063732, -1.90284, 0), V(0.069485, -1.902941, 0)], [4, 1, 1, 1, 1, 1, 1, 1, 1, 1, 1, 1, 1, 1, 1, 1, 4], [0, 1.39820726, 2.701155002, 3.920851914, 5.057115416, 6.123247462, 7.120555937, 8.069346848, 8.966541661, 9.830790757, 10.680415293, 11.521739042, 12.366630257, 13.231390995, 14.116141633, 15.039287353, 16], False, 3, [1, 1, 1, 1, 1, 1, 1, 1, 1, 1, 1, 1, 1, 1, 1, 1, 1, 1, 1], False), False)  # 17
sketch10.addGeometry(Part.BSplineCurve([V(0.067142, -1.497059, 0), V(0.061337, -1.497179, 0), V(0.050026, -1.497413, 0), V(0.033588, -1.500372, 0), V(0.018014, -1.504655, 0), V(0.003491, -1.511068, 0), V(-0.009923, -1.519174, 0), V(-0.022499, -1.528587, 0), V(-0.033946, -1.539683, 0), V(-0.044335, -1.552318, 0), V(-0.053536, -1.566392, 0), V(-0.061588, -1.581871, 0), V(-0.068467, -1.598713, 0), V(-0.074078, -1.616947, 0), V(-0.078462, -1.636447, 0), V(-0.081646, -1.657172, 0), V(-0.083371, -1.679107, 0), V(-0.08367, -1.694115, 0), V(-0.083824, -1.701792, 0)], [4, 1, 1, 1, 1, 1, 1, 1, 1, 1, 1, 1, 1, 1, 1, 1, 4], [0, 0.972080817, 1.89438068, 2.79201181, 3.675405302, 4.546341706, 5.415605955, 6.303960111, 7.212703157, 8.153143135, 9.118265211, 10.13431466, 11.199471373, 12.313676298, 13.483115176, 14.712488772, 16], False, 3, [1, 1, 1, 1, 1, 1, 1, 1, 1, 1, 1, 1, 1, 1, 1, 1, 1, 1, 1], False), False)  # 18
sketch10.addGeometry(Part.BSplineCurve([V(0.207904, -1.55, 0), V(0.206652, -1.549869, 0), V(0.203932, -1.549584, 0), V(0.199764, -1.547903, 0), V(0.19513, -1.545375, 0), V(0.188068, -1.540132, 0), V(0.177475, -1.532396, 0), V(0.162172, -1.522897, 0), V(0.143789, -1.513166, 0), V(0.126095, -1.506208, 0), V(0.110255, -1.501486, 0), V(0.096877, -1.49886, 0), V(0.082386, -1.49739, 0), V(0.072338, -1.497172, 0), V(0.067142, -1.497059, 0)], [4, 1, 1, 1, 1, 1, 1, 1, 1, 1, 1, 1, 4], [0, 0.294660949, 0.639611878, 1.045415135, 1.533607636, 2.701972583, 4.127801724, 5.759893443, 7.582166846, 8.583129585, 9.639604504, 10.779339718, 12], False, 3, [1, 1, 1, 1, 1, 1, 1, 1, 1, 1, 1, 1, 1, 1, 1], False), False)  # 19
sketch10.addGeometry(Part.BSplineCurve([V(0.225, -1.497472, 0), V(0.224942, -1.501885, 0), V(0.224834, -1.510026, 0), V(0.224214, -1.52122, 0), V(0.223058, -1.530419, 0), V(0.221279, -1.537735, 0), V(0.21858, -1.54318, 0), V(0.215562, -1.547092, 0), V(0.211924, -1.549624, 0), V(0.209225, -1.549876, 0), V(0.207904, -1.55, 0)], [4, 1, 1, 1, 1, 1, 1, 1, 4], [0, 1.773747753, 3.272870731, 4.503340964, 5.498117188, 6.282928042, 6.926292104, 7.474587188, 8], False, 3, [1, 1, 1, 1, 1, 1, 1, 1, 1, 1, 1], False), False)  # 20
sketch10.addGeometry(Part.BSplineCurve([V(0.061627, -1.391176, 0), V(0.069818, -1.391388, 0), V(0.085941, -1.391804, 0), V(0.109504, -1.395092, 0), V(0.13165, -1.400005, 0), V(0.152177, -1.406263, 0), V(0.17093, -1.413416, 0), V(0.185002, -1.420567, 0), V(0.194931, -1.426386, 0), V(0.201131, -1.430275, 0), V(0.206051, -1.434039, 0), V(0.210676, -1.438363, 0), V(0.214899, -1.442969, 0), V(0.218616, -1.448109, 0), V(0.220846, -1.453549, 0), V(0.222385, -1.459682, 0), V(0.223654, -1.46701, 0), V(0.224387, -1.475632, 0), V(0.224993, -1.485929, 0), V(0.224998, -1.493381, 0), V(0.225, -1.497472, 0)], [4, 1, 1, 1, 1, 1, 1, 1, 1, 1, 1, 1, 1, 1, 1, 1, 1, 1, 4], [0, 1.99247574, 3.921884623, 5.777623321, 7.507428254, 9.139636718, 10.654923546, 11.341526285, 11.940176233, 12.43448366, 12.845959356, 13.479321404, 13.953882042, 14.379694984, 14.900487377, 15.490617055, 16.187164526, 17.004703962, 18], False, 3, [1, 1, 1, 1, 1, 1, 1, 1, 1, 1, 1, 1, 1, 1, 1, 1, 1, 1, 1, 1, 1], False), False)  # 21
sketch10.addGeometry(Part.BSplineCurve([V(-0.216176, -1.707858, 0), V(-0.215966, -1.695485, 0), V(-0.215558, -1.67141, 0), V(-0.211577, -1.636378, 0), V(-0.205345, -1.603474, 0), V(-0.196519, -1.572735, 0), V(-0.185344, -1.544276, 0), V(-0.172109, -1.518057, 0), V(-0.156779, -1.494249, 0), V(-0.139449, -1.472784, 0), V(-0.120038, -1.453917, 0), V(-0.098988, -1.437156, 0), V(-0.075946, -1.423064, 0), V(-0.05118, -1.411505, 0), V(-0.024902, -1.402346, 0), V(0.002795, -1.395987, 0), V(0.031764, -1.391772, 0), V(0.051547, -1.391377, 0), V(0.061627, -1.391176, 0)], [4, 1, 1, 1, 1, 1, 1, 1, 1, 1, 1, 1, 1, 1, 1, 1, 4], [0, 1.247364886, 2.427039795, 3.55045214, 4.621200906, 5.64704897, 6.629476075, 7.578181143, 8.497404382, 9.405200954, 10.302706402, 11.205651615, 12.122019826, 13.054178336, 14.006318378, 14.984198529, 16], False, 3, [1, 1, 1, 1, 1, 1, 1, 1, 1, 1, 1, 1, 1, 1, 1, 1, 1, 1, 1], False), False)  # 22
sketch10.addGeometry(Part.BSplineCurve([V(0.04977, -2.008824, 0), V(0.039788, -2.008574, 0), V(0.020314, -2.008087, 0), V(-0.008218, -2.004611, 0), V(-0.035234, -1.998731, 0), V(-0.06074, -1.990442, 0), V(-0.084629, -1.979864, 0), V(-0.106614, -1.966638, 0), V(-0.126924, -1.951309, 0), V(-0.145215, -1.933496, 0), V(-0.16164, -1.913384, 0), V(-0.175765, -1.890732, 0), V(-0.188134, -1.865924, 0), V(-0.198259, -1.838734, 0), V(-0.206503, -1.809295, 0), V(-0.211883, -1.77745, 0), V(-0.215693, -1.743428, 0), V(-0.216012, -1.719957, 0), V(-0.216176, -1.707858, 0)], [4, 1, 1, 1, 1, 1, 1, 1, 1, 1, 1, 1, 1, 1, 1, 1, 4], [0, 1.04884528, 2.046173269, 3.015214692, 3.949843553, 4.859908047, 5.754373417, 6.640074381, 7.528023805, 8.430832778, 9.361986752, 10.3273752, 11.339120453, 12.406480085, 13.534714217, 14.729323304, 16], False, 3, [1, 1, 1, 1, 1, 1, 1, 1, 1, 1, 1, 1, 1, 1, 1, 1, 1, 1, 1], False), False)  # 23
sketch10.addConstraint([
    Sketcher.Constraint("Block", 0),
    Sketcher.Constraint("Block", 2),
    Sketcher.Constraint("Block", 3),
    Sketcher.Constraint("Block", 5),
    Sketcher.Constraint("Block", 6),
    Sketcher.Constraint("Block", 10),
    Sketcher.Constraint("Block", 14),
    Sketcher.Constraint("Block", 15),
    Sketcher.Constraint("Block", 16),
    Sketcher.Constraint("Block", 17),
    Sketcher.Constraint("Block", 18),
    Sketcher.Constraint("Block", 19),
    Sketcher.Constraint("Block", 20),
    Sketcher.Constraint("Block", 21),
    Sketcher.Constraint("Block", 22),
    Sketcher.Constraint("Block", 23),
    Sketcher.Constraint("Coincident", 0, 1, 1, 1),
    Sketcher.Constraint("Coincident", 1, 2, 2, 2),
    Sketcher.Constraint("Coincident", 3, 1, 4, 1),
    Sketcher.Constraint("Coincident", 4, 2, 5, 2),
    Sketcher.Constraint("Coincident", 6, 1, 7, 1),
    Sketcher.Constraint("Coincident", 7, 2, 8, 1),
    Sketcher.Constraint("Coincident", 8, 2, 9, 1),
    Sketcher.Constraint("Coincident", 9, 2, 10, 2),
    Sketcher.Constraint("Horizontal", 8),
    Sketcher.Constraint("Horizontal", 12),
    Sketcher.Constraint("PointOnObject", 13, 2, -2),
    Sketcher.Constraint("DistanceX", 8, 1, 8, 2, Q("0.226379 mm")),
    Sketcher.Constraint("DistanceY", 12, 2, 13, 2, Q("0.258502 mm")),
    Sketcher.Constraint("DistanceX", 12, 2, 12, 1, Q("0.164614 mm")),
    Sketcher.Constraint("DistanceX", 7, 2, -1, 1, Q("0.111811 mm")),
    Sketcher.Constraint("DistanceY", -1, 1, 11, 2, Q("1.629412 mm")),
    Sketcher.Constraint("DistanceX", 12, 2, -1, 1, Q("0.081342 mm")),
    Sketcher.Constraint("DistanceY", 8, 2, 11, 2, Q("0.097059 mm")),
])
pocket4 = doc.addObject("PartDesign::Pocket", "Pocket003")
body3.addObject(pocket4)
pocket4.Profile = sketch10
pocket4.setExpression("Length", "Params.pocket4_length")
body4 = doc.addObject("PartDesign::Body", "Body003")

# Sketch on XY plane
sketch11 = doc.addObject("Sketcher::SketchObject", "Sketch010")
body4.addObject(sketch11)
sketch11.AttachmentSupport = (doc.getObject("XY_Plane003"), [""])
sketch11.MapMode = "FlatFace"
sketch11.addGeometry([
    Part.LineSegment(V(0, 8.95, 0), V(0, 3.55, 0)),  # 0
    Part.LineSegment(V(0, 3.55, 0), V(1.89, 3.55, 0)),  # 1
    Part.LineSegment(V(1.89, 3.55, 0), V(1.89, 4.75, 0)),  # 2
    Part.LineSegment(V(1.89, 4.75, 0), V(1.5, 4.75, 0)),  # 3
    Part.LineSegment(V(1.5, 4.75, 0), V(1.5, 5.05, 0)),  # 4
    Part.ArcOfCircle(Part.Circle(V(-102.681665, 5.05, 0), V(0, 0, 1), 104.181665), math.radians(0), math.radians(1.428082)),  # 5
    Part.ArcOfCircle(Part.Circle(V(0.467951, 7.62151, 0), V(0, 0, 1), 1), math.radians(1.428082), math.radians(6.485924)),  # 6
    Part.ArcOfCircle(Part.Circle(V(0.1, 7.579679, 0), V(0, 0, 1), 1.370321), math.radians(6.485923), math.radians(90)),  # 7
    Part.LineSegment(V(0.1, 8.95, 0), V(0, 8.95, 0)),  # 8
], False)
sketch11.addConstraint([
    Sketcher.Constraint("Coincident", 0, 2, 1, 1),
    Sketcher.Constraint("Coincident", 1, 2, 2, 1),
    Sketcher.Constraint("Coincident", 2, 2, 3, 1),
    Sketcher.Constraint("Coincident", 3, 2, 4, 1),
    Sketcher.Constraint("Tangent", 4, 2, 5, 1),
    Sketcher.Constraint("Tangent", 5, 2, 6, 1),
    Sketcher.Constraint("Tangent", 6, 2, 7, 1),
    Sketcher.Constraint("Tangent", 7, 2, 8, 1),
    Sketcher.Constraint("Coincident", 8, 2, 0, 1),
    Sketcher.Constraint("Vertical", 0),
    Sketcher.Constraint("Horizontal", 1),
    Sketcher.Constraint("Vertical", 2),
    Sketcher.Constraint("Horizontal", 3),
    Sketcher.Constraint("Vertical", 4),
    Sketcher.Constraint("Horizontal", 8),
    Sketcher.Constraint("PointOnObject", 0, 2, -2),
    Sketcher.Constraint("Radius", 6, Q("1 mm")),
    Sketcher.Constraint("DistanceX", 8, 2, 8, 1, Q("0.1 mm")),
    Sketcher.Constraint("DistanceY", 0, 2, 0, 1, Q("5.4 mm")),
    Sketcher.Constraint("DistanceY", 2, 1, 2, 2, Q("1.2 mm")),
    Sketcher.Constraint("DistanceY", 4, 1, 4, 2, Q("0.3 mm")),
    Sketcher.Constraint("DistanceX", 1, 1, 1, 2, Q("1.89 mm")),
    Sketcher.Constraint("DistanceX", 3, 2, 3, 1, Q("0.39 mm")),
    Sketcher.Constraint("DistanceY", -1, 1, 5, 3, Q("5.05 mm")),
    Sketcher.Constraint("Radius", 7, Q("1.370321 mm")),
    Sketcher.Constraint("Radius", 5, Q("104.181665 mm")),
])
sketch11.setExpression("Constraints[16]", "Params.sketch11_radius")
sketch11.setExpression("Constraints[17]", "Params.sketch11_width")
sketch11.setExpression("Constraints[18]", "Params.sketch11_height")
sketch11.setExpression("Constraints[19]", "Params.sketch11_height2")
sketch11.setExpression("Constraints[20]", "Params.sketch11_height3")
revolution3 = doc.addObject("PartDesign::Revolution", "Revolution002")
body4.addObject(revolution3)
revolution3.Profile = sketch11
revolution3.ReferenceAxis = (sketch11, ["V_Axis"])
revolution3.setExpression("Angle", "Params.revolution3_angle")

# Sketch on XZ plane
sketch12 = doc.addObject("Sketcher::SketchObject", "Sketch011")
body4.addObject(sketch12)
sketch12.AttachmentSupport = (doc.getObject("XZ_Plane003"), [""])
sketch12.MapMode = "FlatFace"
sketch12.AttachmentOffset = App.Placement(V(0, 0, -4.75), App.Rotation())
sketch12.addGeometry([
    Part.LineSegment(V(-1.109595, -1.53, 0), V(1.109595, -1.53, 0)),
    Part.ArcOfCircle(Part.Circle(V(0, 0, 0), V(0, 0, 1), 1.89), math.radians(-125.950568), math.radians(-54.049432)),
], False)
sketch12.addConstraint([
    Sketcher.Constraint("Coincident", 0, 1, 1, 1),
    Sketcher.Constraint("Coincident", 1, 2, 0, 2),
    Sketcher.Constraint("Horizontal", 0),
    Sketcher.Constraint("Coincident", 1, 3, -1, 1),
    Sketcher.Constraint("Radius", 1, Q("1.89 mm")),
    Sketcher.Constraint("DistanceY", 0, 1, -1, 1, Q("1.53 mm")),
])
sketch12.setExpression("Constraints[4]", "Params.sketch12_radius")
pocket5 = doc.addObject("PartDesign::Pocket", "Pocket004")
body4.addObject(pocket5)
pocket5.Profile = sketch12
pocket5.setExpression("Length", "Params.pocket5_length")
pocket5.Reversed = True
body5 = doc.addObject("PartDesign::Body", "Body004")

# Sketch on XY plane
sketch13 = doc.addObject("Sketcher::SketchObject", "Sketch012")
body5.addObject(sketch13)
sketch13.AttachmentSupport = (doc.getObject("XY_Plane004"), [""])
sketch13.MapMode = "FlatFace"
sketch13.addGeometry(Part.Circle(V(0, 4.15, 0), V(0, 0, 1), 0.25), False)
sketch13.addConstraint([
    Sketcher.Constraint("PointOnObject", 0, 3, -2),
    Sketcher.Constraint("Diameter", 0, Q("0.5 mm")),
    Sketcher.Constraint("DistanceY", -1, 1, 0, 3, Q("4.15 mm")),
])
sketch13.setExpression("Constraints[1]", "Params.sketch13_diameter")

# Sketch on YZ plane
sketch14 = doc.addObject("Sketcher::SketchObject", "Sketch013")
body5.addObject(sketch14)
sketch14.AttachmentSupport = (doc.getObject("YZ_Plane004"), [""])
sketch14.MapMode = "FlatFace"
sketch14.addGeometry([
    Part.LineSegment(V(-22.158641, 5.08, 0), V(-9.45, 5.08, 0)),  # 0
    Part.ArcOfCircle(Part.Circle(V(-9.45, 0.3692, 0), V(0, 0, 1), 4.7108), math.radians(31.884711), math.radians(90)),  # 1
    Part.ArcOfCircle(Part.Circle(V(-1.45, 5.3458, 0), V(0, 0, 1), 4.7108), math.radians(-148.115289), math.radians(-90)),  # 2
    Part.LineSegment(V(-1.45, 0.635, 0), V(4.15, 0.635, 0)),  # 3
    Part.LineSegment(V(4.15, 0.635, 0), V(4.15, -0.635, 0)),  # 4
    Part.LineSegment(V(4.15, -0.635, 0), V(-1.45, -0.635, 0)),  # 5
    Part.ArcOfCircle(Part.Circle(V(-1.45, -4.1681, 0), V(0, 0, 1), 3.5331), math.radians(90), math.radians(148.115289)),  # 6
    Part.ArcOfCircle(Part.Circle(V(-9.45, 0.8085, 0), V(0, 0, 1), 5.8885), math.radians(-90), math.radians(-31.884711)),  # 7
    Part.LineSegment(V(-9.45, -5.08, 0), V(-22.158641, -5.08, 0)),  # 8
], False)
sketch14.addConstraint([
    Sketcher.Constraint("Tangent", 0, 2, 1, 2),
    Sketcher.Constraint("Tangent", 1, 1, 2, 1),
    Sketcher.Constraint("Tangent", 2, 2, 3, 1),
    Sketcher.Constraint("Coincident", 3, 2, 4, 1),
    Sketcher.Constraint("Coincident", 4, 2, 5, 1),
    Sketcher.Constraint("Tangent", 5, 2, 6, 1),
    Sketcher.Constraint("Tangent", 6, 2, 7, 2),
    Sketcher.Constraint("Tangent", 7, 1, 8, 1),
    Sketcher.Constraint("Horizontal", 0),
    Sketcher.Constraint("Horizontal", 3),
    Sketcher.Constraint("Vertical", 4),
    Sketcher.Constraint("Horizontal", 5),
    Sketcher.Constraint("Horizontal", 8),
    Sketcher.Constraint("Equal", 1, 2),
    Sketcher.Constraint("Symmetric", 2, 2, 5, 2, -1),
    Sketcher.Constraint("Symmetric", 0, 2, 7, 1, -1),
    Sketcher.Constraint("Vertical", 0, 1, 8, 2),
    Sketcher.Constraint("DistanceX", 3, 1, 3, 2, Q("5.6 mm")),
    Sketcher.Constraint("DistanceX", 1, 3, 2, 3, Q("8 mm")),
    Sketcher.Constraint("DistanceX", 6, 2, 5, 2, Q("3 mm")),
    Sketcher.Constraint("DistanceY", 4, 2, 4, 1, Q("1.27 mm")),
    Sketcher.Constraint("Radius", 1, Q("4.7108 mm")),
    Sketcher.Constraint("DistanceX", 1, 3, -1, 1, Q("9.45 mm")),
    Sketcher.Constraint("DistanceX", 0, 1, 0, 2, Q("12.708641 mm")),
])
sketch14.setExpression("Constraints[17]", "Params.sketch14_width")
sketch14.setExpression("Constraints[20]", "Params.sketch14_height")
doc.recompute()

additivepipe = doc.addObject("PartDesign::AdditivePipe", "AdditivePipe")
body5.addObject(additivepipe)
additivepipe.Profile = sketch13
additivepipe.Spine = (sketch14, ["Edge1", "Edge2", "Edge3", "Edge4", "Edge5", "Edge6", "Edge7", "Edge8", "Edge9"])
additivepipe.Transition = "Right corner"

doc.recompute()
